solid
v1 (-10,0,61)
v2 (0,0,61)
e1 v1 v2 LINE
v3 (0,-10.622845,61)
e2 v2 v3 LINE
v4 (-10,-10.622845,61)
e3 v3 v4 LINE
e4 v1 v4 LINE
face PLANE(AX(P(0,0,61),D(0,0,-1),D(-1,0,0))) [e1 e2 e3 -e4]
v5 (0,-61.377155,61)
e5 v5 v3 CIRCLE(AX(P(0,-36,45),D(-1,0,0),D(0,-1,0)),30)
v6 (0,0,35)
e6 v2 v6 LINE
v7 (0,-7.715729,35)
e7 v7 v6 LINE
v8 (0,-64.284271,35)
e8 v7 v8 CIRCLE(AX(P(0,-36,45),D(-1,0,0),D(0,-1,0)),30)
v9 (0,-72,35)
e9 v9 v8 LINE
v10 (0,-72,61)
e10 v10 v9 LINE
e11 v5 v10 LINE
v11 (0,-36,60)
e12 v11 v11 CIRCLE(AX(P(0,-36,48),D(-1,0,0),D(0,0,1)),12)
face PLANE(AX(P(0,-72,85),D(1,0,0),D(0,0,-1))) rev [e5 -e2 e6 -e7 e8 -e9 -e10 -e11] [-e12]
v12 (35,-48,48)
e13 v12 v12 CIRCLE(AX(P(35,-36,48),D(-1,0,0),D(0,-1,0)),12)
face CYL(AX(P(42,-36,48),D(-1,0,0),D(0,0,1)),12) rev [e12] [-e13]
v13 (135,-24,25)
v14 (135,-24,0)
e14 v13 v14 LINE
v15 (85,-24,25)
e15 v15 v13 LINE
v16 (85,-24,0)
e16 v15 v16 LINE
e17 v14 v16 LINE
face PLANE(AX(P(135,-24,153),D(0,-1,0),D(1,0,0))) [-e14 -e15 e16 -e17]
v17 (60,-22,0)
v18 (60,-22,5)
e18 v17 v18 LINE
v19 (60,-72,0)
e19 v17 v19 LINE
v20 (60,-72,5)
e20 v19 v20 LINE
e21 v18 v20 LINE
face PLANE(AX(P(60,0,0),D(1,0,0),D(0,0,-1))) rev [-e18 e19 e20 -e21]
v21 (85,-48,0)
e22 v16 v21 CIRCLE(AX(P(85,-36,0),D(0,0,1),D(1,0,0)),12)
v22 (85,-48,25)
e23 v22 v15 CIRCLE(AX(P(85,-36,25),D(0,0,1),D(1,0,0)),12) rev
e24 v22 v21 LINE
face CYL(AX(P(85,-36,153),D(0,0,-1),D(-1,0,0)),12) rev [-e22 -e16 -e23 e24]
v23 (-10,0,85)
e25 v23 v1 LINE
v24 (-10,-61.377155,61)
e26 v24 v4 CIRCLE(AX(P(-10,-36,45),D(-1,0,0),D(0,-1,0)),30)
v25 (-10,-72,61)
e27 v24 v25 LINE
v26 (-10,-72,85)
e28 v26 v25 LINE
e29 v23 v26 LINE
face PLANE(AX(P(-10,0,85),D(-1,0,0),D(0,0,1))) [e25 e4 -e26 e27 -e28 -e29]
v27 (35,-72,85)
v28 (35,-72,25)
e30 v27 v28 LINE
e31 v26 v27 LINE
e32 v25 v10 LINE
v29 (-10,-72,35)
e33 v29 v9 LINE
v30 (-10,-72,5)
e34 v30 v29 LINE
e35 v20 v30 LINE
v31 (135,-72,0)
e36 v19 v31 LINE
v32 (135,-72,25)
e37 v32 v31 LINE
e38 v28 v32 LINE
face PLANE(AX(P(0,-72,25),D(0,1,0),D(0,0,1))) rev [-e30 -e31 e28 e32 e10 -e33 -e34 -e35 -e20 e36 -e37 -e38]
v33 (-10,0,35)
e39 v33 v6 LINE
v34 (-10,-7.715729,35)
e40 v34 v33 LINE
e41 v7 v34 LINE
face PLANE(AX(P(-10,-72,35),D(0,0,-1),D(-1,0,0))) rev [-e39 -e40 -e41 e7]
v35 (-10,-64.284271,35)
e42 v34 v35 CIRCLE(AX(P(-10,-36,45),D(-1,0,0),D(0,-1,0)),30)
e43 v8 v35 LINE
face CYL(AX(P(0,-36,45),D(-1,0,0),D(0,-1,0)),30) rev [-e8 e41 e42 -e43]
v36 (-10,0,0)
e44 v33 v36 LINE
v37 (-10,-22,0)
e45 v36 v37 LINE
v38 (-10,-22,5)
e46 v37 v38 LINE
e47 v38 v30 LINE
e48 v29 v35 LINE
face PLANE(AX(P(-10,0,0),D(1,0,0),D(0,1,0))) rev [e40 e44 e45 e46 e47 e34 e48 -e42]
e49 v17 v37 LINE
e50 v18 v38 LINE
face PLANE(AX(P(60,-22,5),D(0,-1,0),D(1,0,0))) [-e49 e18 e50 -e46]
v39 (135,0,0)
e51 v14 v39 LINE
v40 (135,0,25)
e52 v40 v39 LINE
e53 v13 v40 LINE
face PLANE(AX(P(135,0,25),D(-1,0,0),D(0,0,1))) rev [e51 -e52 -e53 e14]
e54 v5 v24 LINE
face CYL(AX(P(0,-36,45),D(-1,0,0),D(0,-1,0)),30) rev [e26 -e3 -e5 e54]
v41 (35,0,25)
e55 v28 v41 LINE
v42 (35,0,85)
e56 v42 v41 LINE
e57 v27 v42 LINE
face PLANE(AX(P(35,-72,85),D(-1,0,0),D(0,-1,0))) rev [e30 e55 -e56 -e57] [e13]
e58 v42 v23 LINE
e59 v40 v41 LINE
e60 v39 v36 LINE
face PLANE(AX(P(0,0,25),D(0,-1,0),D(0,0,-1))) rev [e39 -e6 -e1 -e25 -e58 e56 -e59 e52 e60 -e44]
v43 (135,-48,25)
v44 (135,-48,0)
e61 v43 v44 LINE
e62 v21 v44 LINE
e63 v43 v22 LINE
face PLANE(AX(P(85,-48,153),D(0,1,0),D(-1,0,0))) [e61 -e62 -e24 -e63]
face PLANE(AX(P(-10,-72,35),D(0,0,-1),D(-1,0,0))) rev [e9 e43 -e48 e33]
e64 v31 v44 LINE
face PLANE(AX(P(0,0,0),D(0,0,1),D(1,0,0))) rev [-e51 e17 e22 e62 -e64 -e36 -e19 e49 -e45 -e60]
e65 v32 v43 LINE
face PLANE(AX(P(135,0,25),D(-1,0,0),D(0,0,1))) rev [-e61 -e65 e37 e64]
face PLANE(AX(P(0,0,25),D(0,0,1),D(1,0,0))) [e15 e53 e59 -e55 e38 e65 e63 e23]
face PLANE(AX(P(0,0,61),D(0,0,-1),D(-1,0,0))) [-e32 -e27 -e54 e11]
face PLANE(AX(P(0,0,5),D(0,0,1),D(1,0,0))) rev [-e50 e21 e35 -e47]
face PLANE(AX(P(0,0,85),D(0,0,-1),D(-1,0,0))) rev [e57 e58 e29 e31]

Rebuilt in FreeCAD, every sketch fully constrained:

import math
import FreeCAD as App
import Part
import Sketcher

V = App.Vector
Q = App.Units.Quantity

doc = App.newDocument("Part")
body = doc.addObject("PartDesign::Body", "Body")

# Sketch on XY plane
sketch1 = body.newObject("Sketcher::SketchObject", "Sketch")
sketch1.AttachmentSupport = (doc.getObject("XY_Plane"), [""])
sketch1.MapMode = "FlatFace"
sketch1.addGeometry(Part.LineSegment(V(0, 0, 0), V(0, -72, 0)), False)
sketch1.addGeometry(Part.LineSegment(V(0, -72, 0), V(135, -72, 0)), False)
sketch1.addGeometry(Part.LineSegment(V(135, -72, 0), V(135, 0, 0)), False)
sketch1.addGeometry(Part.LineSegment(V(135, 0, 0), V(0, 0, 0)), False)
sketch1.addConstraint(Sketcher.Constraint("Coincident", 0, 2, 1, 1))
sketch1.addConstraint(Sketcher.Constraint("Coincident", 1, 2, 2, 1))
sketch1.addConstraint(Sketcher.Constraint("Coincident", 2, 2, 3, 1))
sketch1.addConstraint(Sketcher.Constraint("Coincident", 3, 2, 0, 1))
sketch1.addConstraint(Sketcher.Constraint("Vertical", 0))
sketch1.addConstraint(Sketcher.Constraint("Horizontal", 1))
sketch1.addConstraint(Sketcher.Constraint("Vertical", 2))
sketch1.addConstraint(Sketcher.Constraint("Horizontal", 3))
sketch1.addConstraint(Sketcher.Constraint("Coincident", 3, 2, -1, 1))
sketch1.addConstraint(Sketcher.Constraint("DistanceX", 1, 1, 1, 2, Q("135 mm")))
sketch1.addConstraint(Sketcher.Constraint("DistanceY", 0, 2, 0, 1, Q("72 mm")))
pad1 = body.newObject("PartDesign::Pad", "Pad")
pad1.Profile = sketch1
pad1.Length = 25

# Sketch on XZ plane
sketch2 = body.newObject("Sketcher::SketchObject", "Sketch001")
sketch2.AttachmentSupport = (doc.getObject("XZ_Plane"), [""])
sketch2.MapMode = "FlatFace"
sketch2.AttachmentOffset = App.Placement(V(0, 0, 72), App.Rotation())
sketch2.addGeometry(Part.LineSegment(V(0, 5, 0), V(0, 0, 0)), False)
sketch2.addGeometry(Part.LineSegment(V(0, 0, 0), V(60, 0, 0)), False)
sketch2.addGeometry(Part.LineSegment(V(60, 0, 0), V(60, 5, 0)), False)
sketch2.addGeometry(Part.LineSegment(V(60, 5, 0), V(0, 5, 0)), False)
sketch2.addConstraint(Sketcher.Constraint("Coincident", 0, 2, 1, 1))
sketch2.addConstraint(Sketcher.Constraint("Coincident", 1, 2, 2, 1))
sketch2.addConstraint(Sketcher.Constraint("Coincident", 2, 2, 3, 1))
sketch2.addConstraint(Sketcher.Constraint("Coincident", 3, 2, 0, 1))
sketch2.addConstraint(Sketcher.Constraint("Vertical", 0))
sketch2.addConstraint(Sketcher.Constraint("Horizontal", 1))
sketch2.addConstraint(Sketcher.Constraint("Vertical", 2))
sketch2.addConstraint(Sketcher.Constraint("Horizontal", 3))
sketch2.addConstraint(Sketcher.Constraint("Coincident", 0, 2, -1, 1))
sketch2.addConstraint(Sketcher.Constraint("DistanceX", 1, 1, 1, 2, Q("60 mm")))
sketch2.addConstraint(Sketcher.Constraint("DistanceY", 0, 2, 0, 1, Q("5 mm")))
pocket1 = body.newObject("PartDesign::Pocket", "Pocket")
pocket1.Profile = sketch2
pocket1.Length = 72

# Sketch on XY plane
sketch3 = body.newObject("Sketcher::SketchObject", "Sketch002")
sketch3.AttachmentSupport = (doc.getObject("XY_Plane"), [""])
sketch3.MapMode = "FlatFace"
sketch3.addGeometry(Part.LineSegment(V(135, -24, 0), V(85, -24, 0)), False)
sketch3.addGeometry(Part.ArcOfCircle(Part.Circle(V(85, -36, 0), V(0, 0, 1), 12), math.radians(90), math.radians(270)), False)
sketch3.addGeometry(Part.LineSegment(V(85, -48, 0), V(135, -48, 0)), False)
sketch3.addGeometry(Part.LineSegment(V(135, -48, 0), V(135, -24, 0)), False)
sketch3.addConstraint(Sketcher.Constraint("Tangent", 0, 2, 1, 1))
sketch3.addConstraint(Sketcher.Constraint("Tangent", 1, 2, 2, 1))
sketch3.addConstraint(Sketcher.Constraint("Coincident", 2, 2, 3, 1))
sketch3.addConstraint(Sketcher.Constraint("Coincident", 3, 2, 0, 1))
sketch3.addConstraint(Sketcher.Constraint("Horizontal", 0))
sketch3.addConstraint(Sketcher.Constraint("Horizontal", 2))
sketch3.addConstraint(Sketcher.Constraint("Vertical", 3))
sketch3.addConstraint(Sketcher.Constraint("Radius", 1, Q("12 mm")))
sketch3.addConstraint(Sketcher.Constraint("DistanceX", 0, 2, 0, 1, Q("50 mm")))
sketch3.addConstraint(Sketcher.Constraint("DistanceX", -1, 1, 1, 3, Q("85 mm")))
sketch3.addConstraint(Sketcher.Constraint("DistanceY", 1, 3, -1, 1, Q("36 mm")))
pocket2 = body.newObject("PartDesign::Pocket", "Pocket001")
pocket2.Profile = sketch3
pocket2.Length = 153
pocket2.Reversed = True

# Sketch on YZ plane
sketch4 = body.newObject("Sketcher::SketchObject", "Sketch003")
sketch4.AttachmentSupport = (doc.getObject("YZ_Plane"), [""])
sketch4.MapMode = "FlatFace"
sketch4.addGeometry(Part.LineSegment(V(0, 5, 0), V(-72, 5, 0)), False)
sketch4.addGeometry(Part.LineSegment(V(-72, 5, 0), V(-72, 35, 0)), False)
sketch4.addGeometry(Part.LineSegment(V(-72, 35, 0), V(0, 35, 0)), False)
sketch4.addGeometry(Part.LineSegment(V(0, 35, 0), V(0, 5, 0)), False)
sketch4.addConstraint(Sketcher.Constraint("Coincident", 0, 2, 1, 1))
sketch4.addConstraint(Sketcher.Constraint("Coincident", 1, 2, 2, 1))
sketch4.addConstraint(Sketcher.Constraint("Coincident", 2, 2, 3, 1))
sketch4.addConstraint(Sketcher.Constraint("Coincident", 3, 2, 0, 1))
sketch4.addConstraint(Sketcher.Constraint("Horizontal", 0))
sketch4.addConstraint(Sketcher.Constraint("Vertical", 1))
sketch4.addConstraint(Sketcher.Constraint("Horizontal", 2))
sketch4.addConstraint(Sketcher.Constraint("Vertical", 3))
sketch4.addConstraint(Sketcher.Constraint("PointOnObject", 2, 2, -2))
sketch4.addConstraint(Sketcher.Constraint("DistanceX", 0, 2, 0, 1, Q("72 mm")))
sketch4.addConstraint(Sketcher.Constraint("DistanceY", 1, 1, 1, 2, Q("30 mm")))
sketch4.addConstraint(Sketcher.Constraint("DistanceY", -1, 1, 0, 2, Q("5 mm")))
pad2 = body.newObject("PartDesign::Pad", "Pad001")
pad2.Profile = sketch4
pad2.Length = 10
pad2.Reversed = True

# Sketch on YZ plane
sketch5 = body.newObject("Sketcher::SketchObject", "Sketch004")
sketch5.AttachmentSupport = (doc.getObject("YZ_Plane"), [""])
sketch5.MapMode = "FlatFace"
sketch5.AttachmentOffset = App.Placement(V(0, 0, -10), App.Rotation())
sketch5.addGeometry(Part.LineSegment(V(0, 0, 0), V(-22, 0, 0)), False)
sketch5.addGeometry(Part.LineSegment(V(-22, 0, 0), V(-22, 5, 0)), False)
sketch5.addGeometry(Part.LineSegment(V(-22, 5, 0), V(0, 5, 0)), False)
sketch5.addGeometry(Part.LineSegment(V(0, 5, 0), V(0, 0, 0)), False)
sketch5.addConstraint(Sketcher.Constraint("Coincident", 0, 2, 1, 1))
sketch5.addConstraint(Sketcher.Constraint("Coincident", 1, 2, 2, 1))
sketch5.addConstraint(Sketcher.Constraint("Coincident", 2, 2, 3, 1))
sketch5.addConstraint(Sketcher.Constraint("Coincident", 3, 2, 0, 1))
sketch5.addConstraint(Sketcher.Constraint("Horizontal", 0))
sketch5.addConstraint(Sketcher.Constraint("Vertical", 1))
sketch5.addConstraint(Sketcher.Constraint("Horizontal", 2))
sketch5.addConstraint(Sketcher.Constraint("Vertical", 3))
sketch5.addConstraint(Sketcher.Constraint("Coincident", 3, 2, -1, 1))
sketch5.addConstraint(Sketcher.Constraint("DistanceX", 0, 2, 0, 1, Q("22 mm")))
sketch5.addConstraint(Sketcher.Constraint("DistanceY", 1, 1, 1, 2, Q("5 mm")))
pad3 = body.newObject("PartDesign::Pad", "Pad002")
pad3.Profile = sketch5
pad3.Length = 70

# Sketch on XY plane
sketch6 = body.newObject("Sketcher::SketchObject", "Sketch005")
sketch6.AttachmentSupport = (doc.getObject("XY_Plane"), [""])
sketch6.MapMode = "FlatFace"
sketch6.AttachmentOffset = App.Placement(V(0, 0, 25), App.Rotation())
sketch6.addGeometry(Part.LineSegment(V(0, 0, 0), V(0, -72, 0)), False)
sketch6.addGeometry(Part.LineSegment(V(0, -72, 0), V(35, -72, 0)), False)
sketch6.addGeometry(Part.LineSegment(V(35, -72, 0), V(35, 0, 0)), False)
sketch6.addGeometry(Part.LineSegment(V(35, 0, 0), V(0, 0, 0)), False)
sketch6.addConstraint(Sketcher.Constraint("Coincident", 0, 2, 1, 1))
sketch6.addConstraint(Sketcher.Constraint("Coincident", 1, 2, 2, 1))
sketch6.addConstraint(Sketcher.Constraint("Coincident", 2, 2, 3, 1))
sketch6.addConstraint(Sketcher.Constraint("Coincident", 3, 2, 0, 1))
sketch6.addConstraint(Sketcher.Constraint("Vertical", 0))
sketch6.addConstraint(Sketcher.Constraint("Horizontal", 1))
sketch6.addConstraint(Sketcher.Constraint("Vertical", 2))
sketch6.addConstraint(Sketcher.Constraint("Horizontal", 3))
sketch6.addConstraint(Sketcher.Constraint("Coincident", 3, 2, -1, 1))
sketch6.addConstraint(Sketcher.Constraint("DistanceX", 1, 1, 1, 2, Q("35 mm")))
sketch6.addConstraint(Sketcher.Constraint("DistanceY", 0, 2, 0, 1, Q("72 mm")))
pad4 = body.newObject("PartDesign::Pad", "Pad003")
pad4.Profile = sketch6
pad4.Length = 60

# Sketch on XZ plane
sketch7 = body.newObject("Sketcher::SketchObject", "Sketch006")
sketch7.AttachmentSupport = (doc.getObject("XZ_Plane"), [""])
sketch7.MapMode = "FlatFace"
sketch7.AttachmentOffset = App.Placement(V(0, 0, 72), App.Rotation())
sketch7.addGeometry(Part.LineSegment(V(-10, 85, 0), V(-10, 61, 0)), False)
sketch7.addGeometry(Part.LineSegment(V(-10, 61, 0), V(0, 61, 0)), False)
sketch7.addGeometry(Part.LineSegment(V(0, 61, 0), V(0, 85, 0)), False)
sketch7.addGeometry(Part.LineSegment(V(0, 85, 0), V(-10, 85, 0)), False)
sketch7.addConstraint(Sketcher.Constraint("Coincident", 0, 2, 1, 1))
sketch7.addConstraint(Sketcher.Constraint("Coincident", 1, 2, 2, 1))
sketch7.addConstraint(Sketcher.Constraint("Coincident", 2, 2, 3, 1))
sketch7.addConstraint(Sketcher.Constraint("Coincident", 3, 2, 0, 1))
sketch7.addConstraint(Sketcher.Constraint("Vertical", 0))
sketch7.addConstraint(Sketcher.Constraint("Horizontal", 1))
sketch7.addConstraint(Sketcher.Constraint("Vertical", 2))
sketch7.addConstraint(Sketcher.Constraint("Horizontal", 3))
sketch7.addConstraint(Sketcher.Constraint("PointOnObject", 1, 2, -2))
sketch7.addConstraint(Sketcher.Constraint("DistanceX", 1, 1, 1, 2, Q("10 mm")))
sketch7.addConstraint(Sketcher.Constraint("DistanceY", 0, 2, 0, 1, Q("24 mm")))
sketch7.addConstraint(Sketcher.Constraint("DistanceY", -1, 1, 0, 2, Q("61 mm")))
pad5 = body.newObject("PartDesign::Pad", "Pad004")
pad5.Profile = sketch7
pad5.Length = 72
pad5.Reversed = True

# Sketch on YZ plane
sketch8 = body.newObject("Sketcher::SketchObject", "Sketch007")
sketch8.AttachmentSupport = (doc.getObject("YZ_Plane"), [""])
sketch8.MapMode = "FlatFace"
sketch8.AttachmentOffset = App.Placement(V(0, 0, -10), App.Rotation())
sketch8.addGeometry(Part.LineSegment(V(-64, 35, 0), V(-8, 35, 0)), False)
sketch8.addGeometry(Part.ArcOfCircle(Part.Circle(V(-36, 45, 0), V(0, 0, 1), 30), math.radians(-161), math.radians(-19)), False)
sketch8.addGeometry(Part.LineSegment(V(-11, 61, 0), V(-61, 61, 0)), False)
sketch8.addGeometry(Part.ArcOfCircle(Part.Circle(V(-36, 45, 0), V(0, 0, 1), 30), math.radians(32), math.radians(148)), False)
sketch8.addConstraint(Sketcher.Constraint("Coincident", 0, 1, 1, 1))
sketch8.addConstraint(Sketcher.Constraint("Coincident", 1, 2, 0, 2))
sketch8.addConstraint(Sketcher.Constraint("Coincident", 2, 1, 3, 1))
sketch8.addConstraint(Sketcher.Constraint("Coincident", 3, 2, 2, 2))
sketch8.addConstraint(Sketcher.Constraint("Horizontal", 0))
sketch8.addConstraint(Sketcher.Constraint("Horizontal", 2))
sketch8.addConstraint(Sketcher.Constraint("Coincident", 3, 3, 1, 3))
sketch8.addConstraint(Sketcher.Constraint("Equal", 1, 3))
sketch8.addConstraint(Sketcher.Constraint("Radius", 1, Q("30 mm")))
sketch8.addConstraint(Sketcher.Constraint("DistanceX", 1, 3, -1, 1, Q("36 mm")))
sketch8.addConstraint(Sketcher.Constraint("DistanceY", -1, 1, 1, 3, Q("45 mm")))
sketch8.addConstraint(Sketcher.Constraint("DistanceY", -1, 1, 0, 1, Q("35 mm")))
sketch8.addConstraint(Sketcher.Constraint("DistanceY", -1, 1, 2, 1, Q("61 mm")))
pocket3 = body.newObject("PartDesign::Pocket", "Pocket002")
pocket3.Profile = sketch8
pocket3.Length = 10
pocket3.Reversed = True

# Sketch on YZ plane
sketch9 = body.newObject("Sketcher::SketchObject", "Sketch008")
sketch9.AttachmentSupport = (doc.getObject("YZ_Plane"), [""])
sketch9.MapMode = "FlatFace"
sketch9.addGeometry(Part.Circle(V(-36, 48, 0), V(0, 0, 1), 12), False)
sketch9.addConstraint(Sketcher.Constraint("Diameter", 0, Q("24 mm")))
sketch9.addConstraint(Sketcher.Constraint("DistanceX", 0, 3, -1, 1, Q("36 mm")))
sketch9.addConstraint(Sketcher.Constraint("DistanceY", -1, 1, 0, 3, Q("48 mm")))
pocket4 = body.newObject("PartDesign::Pocket", "Pocket003")
pocket4.Profile = sketch9
pocket4.Length = 42
pocket4.Reversed = True

doc.recompute()
